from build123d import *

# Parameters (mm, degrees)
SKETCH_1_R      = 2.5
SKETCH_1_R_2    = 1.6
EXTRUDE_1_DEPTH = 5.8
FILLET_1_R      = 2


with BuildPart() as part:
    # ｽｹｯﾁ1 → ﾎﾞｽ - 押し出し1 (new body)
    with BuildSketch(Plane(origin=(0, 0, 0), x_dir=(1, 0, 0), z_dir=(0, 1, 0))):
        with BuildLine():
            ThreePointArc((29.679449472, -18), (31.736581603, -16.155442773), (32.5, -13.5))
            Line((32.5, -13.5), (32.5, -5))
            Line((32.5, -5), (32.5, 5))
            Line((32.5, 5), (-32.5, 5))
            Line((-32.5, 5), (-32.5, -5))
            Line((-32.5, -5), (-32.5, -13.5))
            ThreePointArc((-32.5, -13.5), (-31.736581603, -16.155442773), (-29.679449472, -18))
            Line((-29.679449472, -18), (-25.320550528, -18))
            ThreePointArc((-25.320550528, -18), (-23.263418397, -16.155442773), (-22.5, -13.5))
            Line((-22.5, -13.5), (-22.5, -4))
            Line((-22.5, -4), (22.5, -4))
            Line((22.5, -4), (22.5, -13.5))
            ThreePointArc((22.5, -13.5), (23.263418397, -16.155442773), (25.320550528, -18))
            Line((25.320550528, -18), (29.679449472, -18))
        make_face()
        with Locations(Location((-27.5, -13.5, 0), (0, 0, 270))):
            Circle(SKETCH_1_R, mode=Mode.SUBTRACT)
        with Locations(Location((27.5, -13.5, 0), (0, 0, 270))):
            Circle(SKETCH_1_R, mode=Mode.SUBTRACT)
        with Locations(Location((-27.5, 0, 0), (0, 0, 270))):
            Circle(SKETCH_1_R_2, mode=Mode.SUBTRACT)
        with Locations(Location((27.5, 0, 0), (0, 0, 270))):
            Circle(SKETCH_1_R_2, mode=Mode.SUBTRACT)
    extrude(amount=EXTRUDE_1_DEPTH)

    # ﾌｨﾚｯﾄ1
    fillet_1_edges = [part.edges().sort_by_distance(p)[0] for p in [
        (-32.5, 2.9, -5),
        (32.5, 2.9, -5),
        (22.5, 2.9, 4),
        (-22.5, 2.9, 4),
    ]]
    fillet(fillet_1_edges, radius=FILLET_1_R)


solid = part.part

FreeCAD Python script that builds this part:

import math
import FreeCAD as App
import Part
import Sketcher
Q = App.Units.Quantity


def edges_at(feature, points):
    """Names of the edges that pass closest to the given points."""
    edges = feature.Shape.Edges
    near = lambda p: min(range(len(edges)), key=lambda i: edges[i].distToShape(Part.Vertex(*p))[0])
    return sorted({f"Edge{near(p) + 1}" for p in points})

doc = App.newDocument("Part")
body = doc.addObject("PartDesign::Body", "Body")

# Sketch on XZ plane
sketch1 = body.newObject("Sketcher::SketchObject", "Sketch")
sketch1.AttachmentSupport = (doc.getObject("XZ_Plane"), [""])
sketch1.MapMode = "FlatFace"
sketch1.addGeometry(Part.ArcOfCircle(Part.Circle(App.Vector(27.5, 13.5, 0), App.Vector(0, 0, 1), 5), math.radians(0), math.radians(64)), False)
sketch1.addGeometry(Part.LineSegment(App.Vector(32.5, 13.5, 0), App.Vector(32.5, -5, 0)), False)
sketch1.addGeometry(Part.LineSegment(App.Vector(32.5, -5, 0), App.Vector(-32.5, -5, 0)), False)
sketch1.addGeometry(Part.LineSegment(App.Vector(-32.5, -5, 0), App.Vector(-32.5, 13.5, 0)), False)
sketch1.addGeometry(Part.ArcOfCircle(Part.Circle(App.Vector(-27.5, 13.5, 0), App.Vector(0, 0, 1), 5), math.radians(116), math.radians(180)), False)
sketch1.addGeometry(Part.LineSegment(App.Vector(-29.7, 18, 0), App.Vector(-25.3, 18, 0)), False)
sketch1.addGeometry(Part.ArcOfCircle(Part.Circle(App.Vector(-27.5, 13.5, 0), App.Vector(0, 0, 1), 5), math.radians(0), math.radians(64)), False)
sketch1.addGeometry(Part.LineSegment(App.Vector(-22.5, 13.5, 0), App.Vector(-22.5, 4, 0)), False)
sketch1.addGeometry(Part.LineSegment(App.Vector(-22.5, 4, 0), App.Vector(22.5, 4, 0)), False)
sketch1.addGeometry(Part.LineSegment(App.Vector(22.5, 4, 0), App.Vector(22.5, 13.5, 0)), False)
sketch1.addGeometry(Part.ArcOfCircle(Part.Circle(App.Vector(27.5, 13.5, 0), App.Vector(0, 0, 1), 5), math.radians(116), math.radians(180)), False)
sketch1.addGeometry(Part.LineSegment(App.Vector(25.3, 18, 0), App.Vector(29.7, 18, 0)), False)
sketch1.addGeometry(Part.Circle(App.Vector(-27.5, 13.5, 0), App.Vector(0, 0, 1), 2.5), False)
sketch1.addGeometry(Part.Circle(App.Vector(27.5, 13.5, 0), App.Vector(0, 0, 1), 2.5), False)
sketch1.addGeometry(Part.Circle(App.Vector(-27.5, 0, 0), App.Vector(0, 0, 1), 1.6), False)
sketch1.addGeometry(Part.Circle(App.Vector(27.5, 0, 0), App.Vector(0, 0, 1), 1.6), False)
sketch1.addConstraint(Sketcher.Constraint("Tangent", 0, 1, 1, 1))
sketch1.addConstraint(Sketcher.Constraint("Coincident", 1, 2, 2, 1))
sketch1.addConstraint(Sketcher.Constraint("Coincident", 2, 2, 3, 1))
sketch1.addConstraint(Sketcher.Constraint("Tangent", 3, 2, 4, 2))
sketch1.addConstraint(Sketcher.Constraint("Coincident", 4, 1, 5, 1))
sketch1.addConstraint(Sketcher.Constraint("Coincident", 5, 2, 6, 2))
sketch1.addConstraint(Sketcher.Constraint("Tangent", 6, 1, 7, 1))
sketch1.addConstraint(Sketcher.Constraint("Coincident", 7, 2, 8, 1))
sketch1.addConstraint(Sketcher.Constraint("Coincident", 8, 2, 9, 1))
sketch1.addConstraint(Sketcher.Constraint("Tangent", 9, 2, 10, 2))
sketch1.addConstraint(Sketcher.Constraint("Coincident", 10, 1, 11, 1))
sketch1.addConstraint(Sketcher.Constraint("Coincident", 11, 2, 0, 2))
sketch1.addConstraint(Sketcher.Constraint("Vertical", 1))
sketch1.addConstraint(Sketcher.Constraint("Horizontal", 2))
sketch1.addConstraint(Sketcher.Constraint("Vertical", 3))
sketch1.addConstraint(Sketcher.Constraint("Horizontal", 5))
sketch1.addConstraint(Sketcher.Constraint("Vertical", 7))
sketch1.addConstraint(Sketcher.Constraint("Horizontal", 8))
sketch1.addConstraint(Sketcher.Constraint("Vertical", 9))
sketch1.addConstraint(Sketcher.Constraint("Horizontal", 11))
sketch1.addConstraint(Sketcher.Constraint("Coincident", 6, 3, 4, 3))
sketch1.addConstraint(Sketcher.Constraint("Coincident", 10, 3, 0, 3))
sketch1.addConstraint(Sketcher.Constraint("Coincident", 12, 3, 4, 3))
sketch1.addConstraint(Sketcher.Constraint("Coincident", 13, 3, 0, 3))
sketch1.addConstraint(Sketcher.Constraint("Equal", 0, 4))
sketch1.addConstraint(Sketcher.Constraint("Equal", 4, 6))
sketch1.addConstraint(Sketcher.Constraint("Equal", 6, 10))
sketch1.addConstraint(Sketcher.Constraint("Equal", 12, 13))
sketch1.addConstraint(Sketcher.Constraint("Equal", 14, 15))
sketch1.addConstraint(Sketcher.Constraint("Symmetric", 14, 3, 15, 3, -1, 1))
sketch1.addConstraint(Sketcher.Constraint("Symmetric", 0, 3, 4, 3, -2))
sketch1.addConstraint(Sketcher.Constraint("PointOnObject", 14, 3, -1))
sketch1.addConstraint(Sketcher.Constraint("Horizontal", 5, 2, 10, 1))
sketch1.addConstraint(Sketcher.Constraint("Vertical", 12, 3, 14, 3))
sketch1.addConstraint(Sketcher.Constraint("Diameter", 12, Q("5 mm")))
sketch1.addConstraint(Sketcher.Constraint("Radius", 0, Q("5 mm")))
sketch1.addConstraint(Sketcher.Constraint("Diameter", 14, Q("3.2 mm")))
sketch1.addConstraint(Sketcher.Constraint("DistanceX", 2, 2, 2, 1, Q("65 mm")))
sketch1.addConstraint(Sketcher.Constraint("DistanceY", 1, 2, 1, 1, Q("18.5 mm")))
sketch1.addConstraint(Sketcher.Constraint("DistanceY", 7, 2, 7, 1, Q("9.5 mm")))
sketch1.addConstraint(Sketcher.Constraint("DistanceY", 1, 2, -1, 1, Q("5 mm")))
sketch1.addConstraint(Sketcher.Constraint("DistanceY", -1, 1, 4, 1, Q("18 mm")))
pad1 = body.newObject("PartDesign::Pad", "Pad")
pad1.Profile = sketch1
pad1.Length = 5.8
pad1.Reversed = True
doc.recompute()

fillet = body.newObject("PartDesign::Fillet", "Fillet")
fillet.Base = (pad1, edges_at(pad1, [
    (-32.5, 2.9, -5),
    (32.5, 2.9, -5),
    (22.5, 2.9, 4),
    (-22.5, 2.9, 4),
]))
fillet.Radius = 2

doc.recompute()
